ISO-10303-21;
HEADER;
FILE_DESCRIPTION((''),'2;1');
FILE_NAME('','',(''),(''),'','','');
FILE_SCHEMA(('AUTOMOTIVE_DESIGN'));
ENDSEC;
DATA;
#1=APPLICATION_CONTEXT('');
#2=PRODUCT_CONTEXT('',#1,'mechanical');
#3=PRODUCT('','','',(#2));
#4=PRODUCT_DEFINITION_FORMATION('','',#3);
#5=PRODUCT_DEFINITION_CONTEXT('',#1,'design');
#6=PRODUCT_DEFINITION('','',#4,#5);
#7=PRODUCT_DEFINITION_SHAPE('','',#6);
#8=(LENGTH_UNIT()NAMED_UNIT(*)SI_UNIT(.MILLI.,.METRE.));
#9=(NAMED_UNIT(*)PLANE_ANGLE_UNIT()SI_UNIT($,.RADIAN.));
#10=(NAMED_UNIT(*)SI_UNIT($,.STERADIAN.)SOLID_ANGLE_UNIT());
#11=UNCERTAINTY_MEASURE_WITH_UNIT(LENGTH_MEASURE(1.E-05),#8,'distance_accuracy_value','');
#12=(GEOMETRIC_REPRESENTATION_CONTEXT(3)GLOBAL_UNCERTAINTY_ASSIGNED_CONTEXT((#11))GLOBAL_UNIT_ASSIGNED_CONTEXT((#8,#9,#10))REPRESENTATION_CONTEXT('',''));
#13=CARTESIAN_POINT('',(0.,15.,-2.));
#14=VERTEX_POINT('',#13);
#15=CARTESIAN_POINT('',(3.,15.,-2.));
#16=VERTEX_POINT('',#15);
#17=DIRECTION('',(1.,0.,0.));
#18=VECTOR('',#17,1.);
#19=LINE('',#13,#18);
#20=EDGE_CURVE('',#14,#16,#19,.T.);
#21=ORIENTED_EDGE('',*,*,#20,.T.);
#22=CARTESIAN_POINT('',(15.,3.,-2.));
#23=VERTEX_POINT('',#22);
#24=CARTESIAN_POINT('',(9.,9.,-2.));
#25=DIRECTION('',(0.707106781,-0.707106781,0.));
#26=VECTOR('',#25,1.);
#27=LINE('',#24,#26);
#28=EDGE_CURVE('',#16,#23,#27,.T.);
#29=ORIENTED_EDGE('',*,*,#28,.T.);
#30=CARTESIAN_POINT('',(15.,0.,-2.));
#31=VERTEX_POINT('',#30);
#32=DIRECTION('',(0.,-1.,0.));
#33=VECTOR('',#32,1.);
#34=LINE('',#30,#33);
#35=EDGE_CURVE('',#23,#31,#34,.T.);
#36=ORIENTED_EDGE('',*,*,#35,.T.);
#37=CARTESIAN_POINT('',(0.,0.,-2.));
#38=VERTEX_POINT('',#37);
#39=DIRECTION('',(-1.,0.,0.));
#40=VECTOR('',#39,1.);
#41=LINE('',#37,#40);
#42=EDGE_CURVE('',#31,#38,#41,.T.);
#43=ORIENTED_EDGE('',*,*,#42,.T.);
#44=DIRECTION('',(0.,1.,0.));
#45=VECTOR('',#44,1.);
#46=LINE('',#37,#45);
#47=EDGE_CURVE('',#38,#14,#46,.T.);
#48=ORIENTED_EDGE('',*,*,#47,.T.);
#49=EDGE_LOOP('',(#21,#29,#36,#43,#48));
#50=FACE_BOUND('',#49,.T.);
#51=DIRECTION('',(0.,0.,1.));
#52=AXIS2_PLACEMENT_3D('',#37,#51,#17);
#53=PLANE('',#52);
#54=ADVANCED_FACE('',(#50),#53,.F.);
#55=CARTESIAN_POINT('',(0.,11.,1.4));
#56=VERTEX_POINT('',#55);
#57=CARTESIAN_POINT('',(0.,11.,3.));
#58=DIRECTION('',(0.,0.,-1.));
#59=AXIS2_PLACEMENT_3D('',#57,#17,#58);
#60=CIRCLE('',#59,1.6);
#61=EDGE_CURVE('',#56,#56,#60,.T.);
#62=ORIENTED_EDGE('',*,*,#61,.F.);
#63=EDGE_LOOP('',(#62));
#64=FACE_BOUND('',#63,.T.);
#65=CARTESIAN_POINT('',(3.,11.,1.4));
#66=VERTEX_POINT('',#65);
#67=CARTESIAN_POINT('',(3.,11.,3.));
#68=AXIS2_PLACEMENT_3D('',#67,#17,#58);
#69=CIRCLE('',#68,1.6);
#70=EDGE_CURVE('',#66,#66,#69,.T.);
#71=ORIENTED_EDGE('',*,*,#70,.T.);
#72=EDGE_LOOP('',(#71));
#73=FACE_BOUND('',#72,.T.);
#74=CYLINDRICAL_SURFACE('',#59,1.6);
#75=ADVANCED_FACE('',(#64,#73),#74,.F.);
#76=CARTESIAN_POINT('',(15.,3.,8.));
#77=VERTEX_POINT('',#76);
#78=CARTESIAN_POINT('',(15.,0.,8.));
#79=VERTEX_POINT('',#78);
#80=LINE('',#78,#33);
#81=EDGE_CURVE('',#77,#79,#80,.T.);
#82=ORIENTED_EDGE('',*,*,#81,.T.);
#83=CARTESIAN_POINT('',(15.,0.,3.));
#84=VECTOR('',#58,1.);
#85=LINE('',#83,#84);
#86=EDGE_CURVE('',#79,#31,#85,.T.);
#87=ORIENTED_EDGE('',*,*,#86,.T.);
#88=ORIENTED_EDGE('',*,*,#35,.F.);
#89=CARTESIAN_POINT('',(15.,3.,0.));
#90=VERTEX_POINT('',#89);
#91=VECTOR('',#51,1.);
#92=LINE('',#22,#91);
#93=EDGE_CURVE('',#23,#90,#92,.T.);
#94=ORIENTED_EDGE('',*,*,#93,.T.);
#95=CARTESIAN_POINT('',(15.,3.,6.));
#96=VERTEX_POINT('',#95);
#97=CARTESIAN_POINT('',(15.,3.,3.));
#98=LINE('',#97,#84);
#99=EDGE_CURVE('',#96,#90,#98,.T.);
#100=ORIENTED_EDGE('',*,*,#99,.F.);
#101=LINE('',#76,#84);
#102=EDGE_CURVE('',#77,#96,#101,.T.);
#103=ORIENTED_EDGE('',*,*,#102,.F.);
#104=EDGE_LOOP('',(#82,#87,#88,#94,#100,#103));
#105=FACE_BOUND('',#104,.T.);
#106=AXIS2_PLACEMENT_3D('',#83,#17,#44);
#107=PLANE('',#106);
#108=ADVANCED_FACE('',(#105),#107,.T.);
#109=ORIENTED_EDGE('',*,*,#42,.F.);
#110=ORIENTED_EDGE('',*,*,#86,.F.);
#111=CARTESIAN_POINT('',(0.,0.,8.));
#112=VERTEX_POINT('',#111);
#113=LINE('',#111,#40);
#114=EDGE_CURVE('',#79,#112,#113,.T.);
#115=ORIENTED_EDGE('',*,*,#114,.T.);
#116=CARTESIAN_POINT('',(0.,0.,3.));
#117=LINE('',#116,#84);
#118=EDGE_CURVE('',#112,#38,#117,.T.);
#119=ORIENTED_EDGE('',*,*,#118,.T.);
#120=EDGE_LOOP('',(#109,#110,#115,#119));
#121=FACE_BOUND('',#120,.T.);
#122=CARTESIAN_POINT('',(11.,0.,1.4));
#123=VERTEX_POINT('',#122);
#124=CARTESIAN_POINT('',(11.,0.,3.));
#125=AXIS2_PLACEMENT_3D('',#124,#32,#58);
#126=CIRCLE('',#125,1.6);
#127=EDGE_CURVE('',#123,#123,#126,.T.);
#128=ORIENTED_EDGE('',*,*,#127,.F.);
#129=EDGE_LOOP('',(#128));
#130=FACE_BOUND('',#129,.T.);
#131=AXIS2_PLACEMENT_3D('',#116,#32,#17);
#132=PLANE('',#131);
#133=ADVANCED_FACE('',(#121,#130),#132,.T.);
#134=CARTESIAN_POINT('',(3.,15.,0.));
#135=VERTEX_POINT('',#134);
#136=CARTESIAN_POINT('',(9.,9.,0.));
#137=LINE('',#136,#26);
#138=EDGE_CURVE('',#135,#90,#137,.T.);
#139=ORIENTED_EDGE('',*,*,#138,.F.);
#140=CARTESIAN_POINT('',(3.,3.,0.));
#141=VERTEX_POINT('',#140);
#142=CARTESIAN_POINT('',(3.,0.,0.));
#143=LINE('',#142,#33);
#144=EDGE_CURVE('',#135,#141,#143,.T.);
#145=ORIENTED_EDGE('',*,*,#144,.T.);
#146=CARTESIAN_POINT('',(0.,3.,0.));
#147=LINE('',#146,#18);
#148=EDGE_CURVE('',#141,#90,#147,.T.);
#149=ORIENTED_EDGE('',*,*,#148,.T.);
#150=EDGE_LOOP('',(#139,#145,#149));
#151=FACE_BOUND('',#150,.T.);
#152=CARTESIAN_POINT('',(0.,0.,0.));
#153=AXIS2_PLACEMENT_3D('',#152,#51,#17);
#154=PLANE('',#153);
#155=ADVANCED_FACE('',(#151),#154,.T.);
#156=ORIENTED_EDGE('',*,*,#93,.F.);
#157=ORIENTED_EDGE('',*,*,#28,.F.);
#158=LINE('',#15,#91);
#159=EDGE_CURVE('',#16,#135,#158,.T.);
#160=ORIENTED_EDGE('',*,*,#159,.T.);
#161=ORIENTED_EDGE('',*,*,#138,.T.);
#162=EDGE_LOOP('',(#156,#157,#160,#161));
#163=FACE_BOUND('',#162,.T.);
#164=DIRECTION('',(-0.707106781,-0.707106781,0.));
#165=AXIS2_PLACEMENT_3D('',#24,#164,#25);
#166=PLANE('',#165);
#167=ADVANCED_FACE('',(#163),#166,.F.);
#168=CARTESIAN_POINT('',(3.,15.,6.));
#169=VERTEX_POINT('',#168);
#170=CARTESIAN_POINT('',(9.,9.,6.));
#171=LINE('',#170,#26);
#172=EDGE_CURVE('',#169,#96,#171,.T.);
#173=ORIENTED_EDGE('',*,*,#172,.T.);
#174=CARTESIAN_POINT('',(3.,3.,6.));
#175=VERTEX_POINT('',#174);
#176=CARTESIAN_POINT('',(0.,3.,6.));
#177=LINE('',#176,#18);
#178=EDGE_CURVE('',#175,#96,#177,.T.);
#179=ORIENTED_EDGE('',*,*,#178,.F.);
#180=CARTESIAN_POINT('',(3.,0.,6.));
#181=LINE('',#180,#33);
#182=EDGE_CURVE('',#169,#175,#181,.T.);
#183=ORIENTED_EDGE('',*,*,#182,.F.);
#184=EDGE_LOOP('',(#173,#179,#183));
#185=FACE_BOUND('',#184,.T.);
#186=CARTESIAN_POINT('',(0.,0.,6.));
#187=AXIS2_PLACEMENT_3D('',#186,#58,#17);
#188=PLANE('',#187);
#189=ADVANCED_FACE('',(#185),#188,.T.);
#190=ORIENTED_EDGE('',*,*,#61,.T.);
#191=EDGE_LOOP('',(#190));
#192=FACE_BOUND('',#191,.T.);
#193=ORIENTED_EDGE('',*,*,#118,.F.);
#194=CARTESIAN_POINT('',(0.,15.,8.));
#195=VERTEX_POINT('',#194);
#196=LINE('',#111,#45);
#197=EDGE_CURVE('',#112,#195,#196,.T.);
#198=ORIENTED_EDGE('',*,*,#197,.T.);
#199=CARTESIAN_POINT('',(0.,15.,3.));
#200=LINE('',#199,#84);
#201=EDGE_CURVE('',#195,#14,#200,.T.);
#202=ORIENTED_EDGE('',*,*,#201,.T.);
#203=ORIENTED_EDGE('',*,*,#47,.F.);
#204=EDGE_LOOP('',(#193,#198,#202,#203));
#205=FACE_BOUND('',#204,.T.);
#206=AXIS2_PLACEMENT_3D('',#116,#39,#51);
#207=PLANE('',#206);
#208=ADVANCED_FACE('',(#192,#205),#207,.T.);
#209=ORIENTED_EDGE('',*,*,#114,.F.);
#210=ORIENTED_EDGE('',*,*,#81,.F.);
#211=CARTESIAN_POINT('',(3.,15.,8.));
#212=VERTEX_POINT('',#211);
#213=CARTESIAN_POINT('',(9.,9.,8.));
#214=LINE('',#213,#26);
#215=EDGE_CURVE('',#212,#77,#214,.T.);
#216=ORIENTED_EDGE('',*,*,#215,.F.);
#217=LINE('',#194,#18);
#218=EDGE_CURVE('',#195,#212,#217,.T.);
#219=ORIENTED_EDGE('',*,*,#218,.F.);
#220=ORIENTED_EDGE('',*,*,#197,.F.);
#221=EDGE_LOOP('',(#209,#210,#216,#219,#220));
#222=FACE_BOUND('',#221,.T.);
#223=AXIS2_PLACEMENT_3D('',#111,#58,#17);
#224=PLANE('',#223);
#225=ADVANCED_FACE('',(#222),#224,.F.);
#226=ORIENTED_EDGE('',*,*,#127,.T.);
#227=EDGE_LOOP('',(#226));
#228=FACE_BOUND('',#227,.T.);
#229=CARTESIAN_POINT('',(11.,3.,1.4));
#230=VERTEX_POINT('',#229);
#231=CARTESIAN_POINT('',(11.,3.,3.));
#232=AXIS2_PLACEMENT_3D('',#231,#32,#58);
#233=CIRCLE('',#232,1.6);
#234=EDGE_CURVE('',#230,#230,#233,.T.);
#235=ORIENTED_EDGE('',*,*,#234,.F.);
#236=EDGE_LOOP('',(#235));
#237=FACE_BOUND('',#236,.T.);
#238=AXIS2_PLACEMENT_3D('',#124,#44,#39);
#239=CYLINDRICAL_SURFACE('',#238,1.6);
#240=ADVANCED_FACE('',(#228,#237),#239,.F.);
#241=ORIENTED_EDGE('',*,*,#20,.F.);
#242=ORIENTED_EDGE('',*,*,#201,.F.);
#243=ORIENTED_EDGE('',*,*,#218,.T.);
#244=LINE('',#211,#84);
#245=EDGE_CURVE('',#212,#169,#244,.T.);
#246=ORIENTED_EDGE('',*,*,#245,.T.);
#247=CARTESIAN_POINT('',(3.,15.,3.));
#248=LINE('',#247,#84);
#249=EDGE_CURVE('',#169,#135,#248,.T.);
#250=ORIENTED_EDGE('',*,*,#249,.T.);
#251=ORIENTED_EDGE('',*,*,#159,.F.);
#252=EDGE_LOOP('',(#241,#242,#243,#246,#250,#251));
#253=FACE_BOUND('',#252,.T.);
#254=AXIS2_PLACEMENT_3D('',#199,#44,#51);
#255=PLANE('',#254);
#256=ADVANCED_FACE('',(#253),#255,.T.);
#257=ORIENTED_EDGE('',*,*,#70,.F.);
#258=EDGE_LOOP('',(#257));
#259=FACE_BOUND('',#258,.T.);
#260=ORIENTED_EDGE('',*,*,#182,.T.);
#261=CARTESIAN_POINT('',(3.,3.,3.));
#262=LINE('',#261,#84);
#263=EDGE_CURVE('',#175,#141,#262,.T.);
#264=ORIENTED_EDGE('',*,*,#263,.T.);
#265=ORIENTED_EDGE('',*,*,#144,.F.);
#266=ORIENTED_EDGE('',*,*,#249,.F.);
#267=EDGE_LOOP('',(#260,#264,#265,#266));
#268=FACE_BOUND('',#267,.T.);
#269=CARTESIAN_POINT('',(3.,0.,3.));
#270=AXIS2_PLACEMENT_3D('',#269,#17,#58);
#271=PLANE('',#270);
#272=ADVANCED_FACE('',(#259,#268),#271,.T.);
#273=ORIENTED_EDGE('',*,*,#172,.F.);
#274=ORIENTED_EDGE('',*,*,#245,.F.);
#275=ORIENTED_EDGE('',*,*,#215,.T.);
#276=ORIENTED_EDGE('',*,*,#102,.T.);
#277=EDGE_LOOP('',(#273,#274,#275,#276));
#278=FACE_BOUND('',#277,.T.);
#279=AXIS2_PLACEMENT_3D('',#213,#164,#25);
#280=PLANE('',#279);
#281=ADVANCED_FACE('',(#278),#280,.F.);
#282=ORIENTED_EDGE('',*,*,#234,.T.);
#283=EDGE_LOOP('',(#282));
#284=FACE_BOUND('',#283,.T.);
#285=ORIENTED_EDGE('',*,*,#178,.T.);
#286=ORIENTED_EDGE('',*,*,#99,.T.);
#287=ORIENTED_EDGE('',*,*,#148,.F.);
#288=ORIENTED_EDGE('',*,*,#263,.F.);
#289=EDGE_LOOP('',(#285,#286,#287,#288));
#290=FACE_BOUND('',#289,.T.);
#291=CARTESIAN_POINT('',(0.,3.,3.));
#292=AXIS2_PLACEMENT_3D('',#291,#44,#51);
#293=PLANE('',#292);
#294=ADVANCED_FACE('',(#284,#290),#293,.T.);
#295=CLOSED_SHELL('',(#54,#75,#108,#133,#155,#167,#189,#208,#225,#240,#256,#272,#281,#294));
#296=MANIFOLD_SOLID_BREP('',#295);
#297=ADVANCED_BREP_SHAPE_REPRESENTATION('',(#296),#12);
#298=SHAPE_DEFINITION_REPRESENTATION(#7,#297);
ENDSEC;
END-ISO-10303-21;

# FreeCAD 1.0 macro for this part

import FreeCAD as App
import Part
import Sketcher

V = App.Vector
Q = App.Units.Quantity

doc = App.newDocument("Part")
body = doc.addObject("PartDesign::Body", "Body")

sketch1 = doc.addObject("Sketcher::SketchObject", "Sketch")
body.addObject(sketch1)
sketch1.AttachmentSupport = (doc.XY_Plane, [""])
sketch1.MapMode = "FlatFace"
sketch1.addGeometry([
    Part.LineSegment(V(0, 15, 0), V(0, 0, 0)),
    Part.LineSegment(V(0, 0, 0), V(15, 0, 0)),
    Part.LineSegment(V(15, 0, 0), V(15, 3, 0)),
    Part.LineSegment(V(15, 3, 0), V(3, 3, 0)),
    Part.LineSegment(V(3, 3, 0), V(3, 15, 0)),
    Part.LineSegment(V(3, 15, 0), V(0, 15, 0)),
], False)
sketch1.addConstraint([
    Sketcher.Constraint("Coincident", 0, 2, 1, 1),
    Sketcher.Constraint("Coincident", 1, 2, 2, 1),
    Sketcher.Constraint("Coincident", 2, 2, 3, 1),
    Sketcher.Constraint("Coincident", 3, 2, 4, 1),
    Sketcher.Constraint("Coincident", 4, 2, 5, 1),
    Sketcher.Constraint("Coincident", 5, 2, 0, 1),
    Sketcher.Constraint("Vertical", 0),
    Sketcher.Constraint("Horizontal", 1),
    Sketcher.Constraint("Vertical", 2),
    Sketcher.Constraint("Horizontal", 3),
    Sketcher.Constraint("Vertical", 4),
    Sketcher.Constraint("Horizontal", 5),
    Sketcher.Constraint("Coincident", 0, 2, -1, 1),
    Sketcher.Constraint("Equal", 1, 0),
    Sketcher.Constraint("Equal", 5, 2),
    Sketcher.Constraint("DistanceX", 1, 1, 1, 2, Q("15 mm")),
    Sketcher.Constraint("DistanceX", 3, 2, 3, 1, Q("12 mm")),
])
pad1 = doc.addObject("PartDesign::Pad", "Pad")
body.addObject(pad1)
pad1.Profile = sketch1
pad1.Length = 3

sketch2 = doc.addObject("Sketcher::SketchObject", "Sketch001")
body.addObject(sketch2)
sketch2.AttachmentSupport = (doc.XY_Plane, [""])
sketch2.MapMode = "FlatFace"
sketch2.addGeometry([
    Part.LineSegment(V(0, 15, 0), V(0, 0, 0)),
    Part.LineSegment(V(0, 0, 0), V(15, 0, 0)),
    Part.LineSegment(V(15, 0, 0), V(15, 3, 0)),
    Part.LineSegment(V(15, 3, 0), V(3, 15, 0)),
    Part.LineSegment(V(3, 15, 0), V(0, 15, 0)),
], False)
sketch2.addConstraint([
    Sketcher.Constraint("Coincident", 0, 2, 1, 1),
    Sketcher.Constraint("Coincident", 1, 2, 2, 1),
    Sketcher.Constraint("Coincident", 2, 2, 3, 1),
    Sketcher.Constraint("Coincident", 3, 2, 4, 1),
    Sketcher.Constraint("Coincident", 4, 2, 0, 1),
    Sketcher.Constraint("Vertical", 0),
    Sketcher.Constraint("Horizontal", 1),
    Sketcher.Constraint("Vertical", 2),
    Sketcher.Constraint("Horizontal", 4),
    Sketcher.Constraint("Coincident", 0, 2, -1, 1),
    Sketcher.Constraint("Equal", 1, 0),
    Sketcher.Constraint("Equal", 4, 2),
    Sketcher.Constraint("DistanceX", 1, 1, 1, 2, Q("15 mm")),
    Sketcher.Constraint("DistanceX", 4, 2, 4, 1, Q("3 mm")),
])
pad2 = doc.addObject("PartDesign::Pad", "Pad001")
body.addObject(pad2)
pad2.Profile = sketch2
pad2.Length = 2
pad2.Reversed = True
body2 = doc.addObject("PartDesign::Body", "Body001")
doc.recompute()

body2.BaseFeature = body
doc.recompute()

mirroring = doc.addObject("Part::Mirroring", "Mirroring")
mirroring.Source = body
mirroring.Base = V(0, 0, 3)
mirroring.Normal = V(0, 0, 1)
body3 = doc.addObject("PartDesign::Body", "Body002")
body3.BaseFeature = mirroring
boolean = doc.addObject("PartDesign::Boolean", "Boolean")
body2.addObject(boolean)
boolean.Type = "Fuse"
boolean.addObjects([body3])
doc.recompute()

sketch3 = doc.addObject("Sketcher::SketchObject", "Sketch002")
body2.addObject(sketch3)
sketch3.AttachmentSupport = (doc.getObject("YZ_Plane001"), [""])
sketch3.MapMode = "FlatFace"
sketch3.AttachmentOffset = App.Placement(V(0, 0, 3), App.Rotation())
sketch3.addGeometry(Part.Circle(V(11, 3, 0), V(0, 0, 1), 1.6), False)
sketch3.addConstraint([
    Sketcher.Constraint("Diameter", 0, Q("3.2 mm")),
    Sketcher.Constraint("DistanceX", -1, 1, 0, 3, Q("11 mm")),
    Sketcher.Constraint("DistanceY", -1, 1, 0, 3, Q("3 mm")),
])
pocket1 = doc.addObject("PartDesign::Pocket", "Pocket")
body2.addObject(pocket1)
pocket1.Profile = sketch3
pocket1.Type = "ThroughAll"
doc.recompute()

datumplane = doc.addObject("PartDesign::Plane", "DatumPlane")
body2.addObject(datumplane)
datumplane.Placement = App.Placement(V(0, 0, 0), App.Rotation(V(-0.707106781, -0.707106781, 0), V(0, 0, -1), V(0.707106781, -0.707106781, 0), "ZXY"))
mirrored = doc.addObject("PartDesign::Mirrored", "Mirrored")
body2.addObject(mirrored)
mirrored.Originals = [pocket1]
mirrored.MirrorPlane = (datumplane, [""])
body2.Tip = mirrored
mirroring.Visibility = False

doc.recompute()
